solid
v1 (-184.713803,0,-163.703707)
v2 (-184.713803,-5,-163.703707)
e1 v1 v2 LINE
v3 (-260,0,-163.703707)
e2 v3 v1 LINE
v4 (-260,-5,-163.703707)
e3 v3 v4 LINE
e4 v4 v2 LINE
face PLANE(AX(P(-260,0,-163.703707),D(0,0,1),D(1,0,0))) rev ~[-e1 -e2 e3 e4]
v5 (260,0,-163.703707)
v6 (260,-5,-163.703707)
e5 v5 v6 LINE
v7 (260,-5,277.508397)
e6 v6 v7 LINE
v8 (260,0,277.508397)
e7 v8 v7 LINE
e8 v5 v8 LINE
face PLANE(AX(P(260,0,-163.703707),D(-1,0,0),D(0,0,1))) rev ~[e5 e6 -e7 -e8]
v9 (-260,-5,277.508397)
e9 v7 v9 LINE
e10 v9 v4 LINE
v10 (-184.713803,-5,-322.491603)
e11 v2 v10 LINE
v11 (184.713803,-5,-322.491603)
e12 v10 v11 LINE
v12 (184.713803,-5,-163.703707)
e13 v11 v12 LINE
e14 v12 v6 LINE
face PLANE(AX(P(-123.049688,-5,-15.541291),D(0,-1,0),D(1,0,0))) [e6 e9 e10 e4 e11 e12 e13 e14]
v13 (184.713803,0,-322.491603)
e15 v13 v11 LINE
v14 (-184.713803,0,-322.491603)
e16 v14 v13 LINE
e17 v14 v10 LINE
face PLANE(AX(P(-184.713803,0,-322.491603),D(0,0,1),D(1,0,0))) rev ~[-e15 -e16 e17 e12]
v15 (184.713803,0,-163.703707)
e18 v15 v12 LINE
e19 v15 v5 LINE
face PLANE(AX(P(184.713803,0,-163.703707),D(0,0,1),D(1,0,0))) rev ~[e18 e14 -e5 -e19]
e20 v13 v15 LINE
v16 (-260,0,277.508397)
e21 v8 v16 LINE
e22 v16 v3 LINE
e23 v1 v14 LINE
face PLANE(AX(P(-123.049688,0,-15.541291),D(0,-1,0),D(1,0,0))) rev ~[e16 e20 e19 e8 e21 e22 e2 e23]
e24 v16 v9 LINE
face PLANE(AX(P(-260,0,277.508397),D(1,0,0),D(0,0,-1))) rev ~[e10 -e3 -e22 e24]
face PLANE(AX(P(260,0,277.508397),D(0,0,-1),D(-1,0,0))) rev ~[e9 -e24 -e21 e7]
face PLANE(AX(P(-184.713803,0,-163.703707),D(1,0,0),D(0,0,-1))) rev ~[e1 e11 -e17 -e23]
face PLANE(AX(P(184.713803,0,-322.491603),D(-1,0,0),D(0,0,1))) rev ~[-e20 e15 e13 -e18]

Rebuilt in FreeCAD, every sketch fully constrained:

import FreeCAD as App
import Part
import Sketcher

V = App.Vector


def add_polygon(sketch, points):
    """Adds a closed chain of lines whose ends are joined by coincident constraints."""
    first, n = sketch.GeometryCount, len(points)
    for a, b in zip(points, points[1:] + points[:1]):
        sketch.addGeometry(Part.LineSegment(App.Vector(*a, 0), App.Vector(*b, 0)), False)
    for i in range(n):
        sketch.addConstraint(Sketcher.Constraint("Coincident", first + i, 2, first + (i + 1) % n, 1))

doc = App.newDocument("Part")
body = doc.addObject("PartDesign::Body", "Body")

# Sketch on XZ plane
sketch1 = doc.addObject("Sketcher::SketchObject", "Sketch")
body.addObject(sketch1)
sketch1.AttachmentSupport = (doc.XZ_Plane, [""])
sketch1.MapMode = "FlatFace"
add_polygon(sketch1, [(-260, 278), (-260, -164), (-185, -164), (-185, -322), (185, -322), (185, -164), (260, -164), (260, 278)])  # lines 0-7
sketch1.addConstraint(Sketcher.Constraint("Vertical", 0))
sketch1.addConstraint(Sketcher.Constraint("Horizontal", 1))
sketch1.addConstraint(Sketcher.Constraint("Vertical", 2))
sketch1.addConstraint(Sketcher.Constraint("Horizontal", 3))
sketch1.addConstraint(Sketcher.Constraint("Vertical", 4))
sketch1.addConstraint(Sketcher.Constraint("Horizontal", 5))
sketch1.addConstraint(Sketcher.Constraint("Vertical", 6))
sketch1.addConstraint(Sketcher.Constraint("Horizontal", 7))
sketch1.addConstraint(Sketcher.Constraint("Symmetric", 1, 2, 4, 2, -2))
sketch1.addConstraint(Sketcher.Constraint("Equal", 1, 5))
sketch1.addConstraint(Sketcher.Constraint("DistanceX", 7, 2, 7, 1, 520.0))
sketch1.addConstraint(Sketcher.Constraint("DistanceY", 3, 2, 6, 2, 600.0))
sketch1.addConstraint(Sketcher.Constraint("DistanceX", 1, 1, 1, 2, 75.286197))
sketch1.addConstraint(Sketcher.Constraint("DistanceY", 0, 2, 0, 1, 441.212104))
sketch1.addConstraint(Sketcher.Constraint("DistanceY", 0, 2, -1, 1, 163.703707))
pad1 = doc.addObject("PartDesign::Pad", "Pad")
body.addObject(pad1)
pad1.Profile = sketch1
pad1.Length = 5

doc.recompute()
